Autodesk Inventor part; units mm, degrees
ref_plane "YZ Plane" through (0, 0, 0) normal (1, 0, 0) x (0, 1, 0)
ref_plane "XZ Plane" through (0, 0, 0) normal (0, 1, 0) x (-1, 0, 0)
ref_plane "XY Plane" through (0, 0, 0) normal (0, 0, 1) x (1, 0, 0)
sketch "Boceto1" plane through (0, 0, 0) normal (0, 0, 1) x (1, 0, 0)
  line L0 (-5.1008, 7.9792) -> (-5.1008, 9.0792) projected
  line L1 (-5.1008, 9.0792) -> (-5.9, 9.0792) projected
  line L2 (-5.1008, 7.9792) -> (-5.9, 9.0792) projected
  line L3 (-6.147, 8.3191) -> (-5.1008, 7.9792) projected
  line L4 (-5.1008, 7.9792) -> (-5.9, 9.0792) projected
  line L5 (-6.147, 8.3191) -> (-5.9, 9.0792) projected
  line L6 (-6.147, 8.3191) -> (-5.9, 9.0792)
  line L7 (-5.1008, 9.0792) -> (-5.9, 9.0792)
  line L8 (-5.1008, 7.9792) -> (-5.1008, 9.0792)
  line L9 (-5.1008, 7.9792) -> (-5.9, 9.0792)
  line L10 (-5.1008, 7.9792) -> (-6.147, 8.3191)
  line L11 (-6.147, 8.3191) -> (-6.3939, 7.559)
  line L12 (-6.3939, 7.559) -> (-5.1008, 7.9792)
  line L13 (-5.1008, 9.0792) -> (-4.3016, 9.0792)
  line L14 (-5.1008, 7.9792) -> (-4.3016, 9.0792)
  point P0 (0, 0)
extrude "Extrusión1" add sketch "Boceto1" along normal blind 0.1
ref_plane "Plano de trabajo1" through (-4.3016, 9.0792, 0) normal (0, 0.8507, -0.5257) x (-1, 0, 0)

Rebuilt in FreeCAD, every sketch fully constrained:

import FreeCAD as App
import Part
import Sketcher
Q = App.Units.Quantity


def add_polygon(sketch, points):
    """Adds a closed chain of lines whose ends are joined by coincident constraints."""
    first, n = sketch.GeometryCount, len(points)
    for a, b in zip(points, points[1:] + points[:1]):
        sketch.addGeometry(Part.LineSegment(App.Vector(*a, 0), App.Vector(*b, 0)), False)
    for i in range(n):
        sketch.addConstraint(Sketcher.Constraint("Coincident", first + i, 2, first + (i + 1) % n, 1))

doc = App.newDocument("Part")
body = doc.addObject("PartDesign::Body", "Body")

# Sketch on XY plane
sketch1 = doc.addObject("Sketcher::SketchObject", "Sketch")
body.addObject(sketch1)
sketch1.AttachmentSupport = (doc.XY_Plane, [""])
sketch1.MapMode = "FlatFace"
add_polygon(sketch1, [(-5.9, 9.0792), (-6.147, 8.3191), (-6.3939, 7.559), (-5.1008, 7.9792), (-4.3016, 9.0792)])  # lines 0-4
sketch1.addConstraint(Sketcher.Constraint("Horizontal", 4))
sketch1.addConstraint(Sketcher.Constraint("Parallel", 0, 1))
sketch1.addConstraint(Sketcher.Constraint("Equal", 0, 1))
sketch1.addConstraint(Sketcher.Constraint("Equal", 2, 3))
sketch1.addConstraint(Sketcher.Constraint("Angle", 3, Q("54 deg")))
sketch1.addConstraint(Sketcher.Constraint("DistanceX", 4, 2, -1, 1, Q("5.9 mm")))
sketch1.addConstraint(Sketcher.Constraint("DistanceY", 2, 2, 3, 2, Q("1.1 mm")))
sketch1.addConstraint(Sketcher.Constraint("DistanceY", 1, 2, 0, 2, Q("0.76 mm")))
sketch1.addConstraint(Sketcher.Constraint("DistanceX", 4, 2, 4, 1, Q("1.5984 mm")))
sketch1.addConstraint(Sketcher.Constraint("DistanceY", -1, 1, 0, 2, Q("8.319 mm")))
pad1 = doc.addObject("PartDesign::Pad", "Pad")
body.addObject(pad1)
pad1.Profile = sketch1
pad1.Length = 0.1

doc.recompute()
